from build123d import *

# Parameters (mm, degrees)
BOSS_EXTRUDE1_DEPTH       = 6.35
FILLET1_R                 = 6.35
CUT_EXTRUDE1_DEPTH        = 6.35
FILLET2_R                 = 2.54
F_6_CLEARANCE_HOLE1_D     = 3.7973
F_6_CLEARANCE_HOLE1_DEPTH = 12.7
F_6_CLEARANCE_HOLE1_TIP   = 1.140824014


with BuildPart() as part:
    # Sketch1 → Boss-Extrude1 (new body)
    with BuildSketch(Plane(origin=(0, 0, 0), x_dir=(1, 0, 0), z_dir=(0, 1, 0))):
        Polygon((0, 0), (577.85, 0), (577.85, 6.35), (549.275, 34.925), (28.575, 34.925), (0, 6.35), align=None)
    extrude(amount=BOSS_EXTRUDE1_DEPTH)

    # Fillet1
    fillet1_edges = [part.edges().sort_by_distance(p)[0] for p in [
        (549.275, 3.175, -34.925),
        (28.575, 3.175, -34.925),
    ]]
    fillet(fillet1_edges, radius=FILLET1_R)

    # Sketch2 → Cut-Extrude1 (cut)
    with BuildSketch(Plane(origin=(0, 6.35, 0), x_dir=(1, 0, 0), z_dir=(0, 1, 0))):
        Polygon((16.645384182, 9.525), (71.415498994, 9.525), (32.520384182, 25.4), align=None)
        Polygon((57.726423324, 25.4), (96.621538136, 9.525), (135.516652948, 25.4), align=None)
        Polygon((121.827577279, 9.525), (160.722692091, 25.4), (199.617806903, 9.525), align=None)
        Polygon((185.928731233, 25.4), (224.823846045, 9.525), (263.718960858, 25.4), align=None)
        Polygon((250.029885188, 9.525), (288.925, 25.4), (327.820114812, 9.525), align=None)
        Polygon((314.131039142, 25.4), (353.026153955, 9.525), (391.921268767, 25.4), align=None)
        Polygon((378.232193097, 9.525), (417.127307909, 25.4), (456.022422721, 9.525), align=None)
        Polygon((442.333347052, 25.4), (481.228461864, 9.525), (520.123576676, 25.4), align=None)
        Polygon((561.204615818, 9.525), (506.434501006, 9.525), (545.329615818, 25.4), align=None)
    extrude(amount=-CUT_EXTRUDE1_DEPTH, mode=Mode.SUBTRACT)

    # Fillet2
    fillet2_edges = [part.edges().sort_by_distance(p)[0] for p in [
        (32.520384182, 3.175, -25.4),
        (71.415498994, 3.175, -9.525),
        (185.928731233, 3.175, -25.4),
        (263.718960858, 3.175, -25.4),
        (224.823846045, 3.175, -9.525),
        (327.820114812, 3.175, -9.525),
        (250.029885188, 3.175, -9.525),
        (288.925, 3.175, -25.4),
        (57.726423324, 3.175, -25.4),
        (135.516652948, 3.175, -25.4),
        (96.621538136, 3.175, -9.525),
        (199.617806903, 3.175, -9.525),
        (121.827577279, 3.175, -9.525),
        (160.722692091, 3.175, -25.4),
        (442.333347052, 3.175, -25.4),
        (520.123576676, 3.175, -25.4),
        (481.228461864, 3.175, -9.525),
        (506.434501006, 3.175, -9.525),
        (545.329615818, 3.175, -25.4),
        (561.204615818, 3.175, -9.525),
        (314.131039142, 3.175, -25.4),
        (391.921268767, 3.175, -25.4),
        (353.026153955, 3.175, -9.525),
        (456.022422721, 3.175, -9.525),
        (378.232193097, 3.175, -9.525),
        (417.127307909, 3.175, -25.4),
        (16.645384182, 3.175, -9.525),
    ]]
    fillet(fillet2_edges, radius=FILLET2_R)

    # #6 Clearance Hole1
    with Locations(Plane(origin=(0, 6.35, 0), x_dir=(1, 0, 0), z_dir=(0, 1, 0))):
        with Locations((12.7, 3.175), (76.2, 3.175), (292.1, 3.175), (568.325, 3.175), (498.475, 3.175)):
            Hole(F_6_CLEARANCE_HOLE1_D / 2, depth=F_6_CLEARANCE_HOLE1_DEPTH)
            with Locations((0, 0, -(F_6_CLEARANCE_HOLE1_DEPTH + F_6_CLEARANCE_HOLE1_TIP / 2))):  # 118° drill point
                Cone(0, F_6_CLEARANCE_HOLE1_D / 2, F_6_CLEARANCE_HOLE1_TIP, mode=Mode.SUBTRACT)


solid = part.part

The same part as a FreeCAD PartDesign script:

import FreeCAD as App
import Part
import Sketcher
from FreeCAD import Vector
Q = App.Units.Quantity


def edges_at(feature, points):
    """Names of the edges that pass closest to the given points."""
    edges = feature.Shape.Edges
    near = lambda p: min(range(len(edges)), key=lambda i: edges[i].distToShape(Part.Vertex(*p))[0])
    return sorted({f"Edge{near(p) + 1}" for p in points})

doc = App.newDocument("Part")
params = doc.addObject("Spreadsheet::Sheet", "Params")
for row, (alias, value) in enumerate([
    ("sketch1_width", "20.5 in"),
    ("sketch1_width2", "22.75 in"),
    ("sketch1_height", "0.25 in"),
    ("pad1_length", "0.25 in"),
    ("fillet_radius", "0.25 in"),
    ("pocket1_length", "0.25 in"),
    ("fillet2_radius", "0.1 in"),
    ("hole_diameter", "0.1495 in"),
    ("hole_depth", "0.5 in"),
], start=1):
    params.set(f"A{row}", alias)
    params.set(f"B{row}", "=" + value)
    params.setAlias(f"B{row}", alias)

body = doc.addObject("PartDesign::Body", "Body")

sketch1 = body.newObject("Sketcher::SketchObject", "Sketch")
sketch1.AttachmentSupport = (doc.getObject("XZ_Plane"), [""])
sketch1.MapMode = "FlatFace"
sketch1.addGeometry(Part.LineSegment(Vector(0, 0, 0), Vector(578, 0, 0)), False)
sketch1.addGeometry(Part.LineSegment(Vector(578, 0, 0), Vector(578, -6, 0)), False)
sketch1.addGeometry(Part.LineSegment(Vector(578, -6, 0), Vector(549, -35, 0)), False)
sketch1.addGeometry(Part.LineSegment(Vector(549, -35, 0), Vector(29, -35, 0)), False)
sketch1.addGeometry(Part.LineSegment(Vector(29, -35, 0), Vector(0, -6, 0)), False)
sketch1.addGeometry(Part.LineSegment(Vector(0, -6, 0), Vector(0, 0, 0)), False)
sketch1.addConstraint(Sketcher.Constraint("Coincident", 0, 2, 1, 1))
sketch1.addConstraint(Sketcher.Constraint("Coincident", 1, 2, 2, 1))
sketch1.addConstraint(Sketcher.Constraint("Coincident", 2, 2, 3, 1))
sketch1.addConstraint(Sketcher.Constraint("Coincident", 3, 2, 4, 1))
sketch1.addConstraint(Sketcher.Constraint("Coincident", 4, 2, 5, 1))
sketch1.addConstraint(Sketcher.Constraint("Coincident", 5, 2, 0, 1))
sketch1.addConstraint(Sketcher.Constraint("Horizontal", 0))
sketch1.addConstraint(Sketcher.Constraint("Vertical", 1))
sketch1.addConstraint(Sketcher.Constraint("Horizontal", 3))
sketch1.addConstraint(Sketcher.Constraint("Vertical", 5))
sketch1.addConstraint(Sketcher.Constraint("Coincident", 5, 2, -1, 1))
sketch1.addConstraint(Sketcher.Constraint("Perpendicular", 2, 4))
sketch1.addConstraint(Sketcher.Constraint("Horizontal", 1, 2, 4, 2))
sketch1.addConstraint(Sketcher.Constraint("Equal", 2, 4))
sketch1.addConstraint(Sketcher.Constraint("DistanceX", 3, 2, 3, 1, Q("20.5 in")))
sketch1.addConstraint(Sketcher.Constraint("DistanceX", 0, 1, 0, 2, Q("22.75 in")))
sketch1.addConstraint(Sketcher.Constraint("DistanceY", 1, 2, 1, 1, Q("0.25 in")))
sketch1.setExpression("Constraints[14]", "Params.sketch1_width")
sketch1.setExpression("Constraints[15]", "Params.sketch1_width2")
sketch1.setExpression("Constraints[16]", "Params.sketch1_height")
pad1 = body.newObject("PartDesign::Pad", "Pad")
pad1.Profile = sketch1
pad1.setExpression("Length", "Params.pad1_length")
pad1.Reversed = True
doc.recompute()

fillet = body.newObject("PartDesign::Fillet", "Fillet")
fillet.Base = (pad1, edges_at(pad1, [(549.275, 3.175, -34.925), (28.575, 3.175, -34.925)]))
fillet.setExpression("Radius", "Params.fillet_radius")

sketch2 = body.newObject("Sketcher::SketchObject", "Sketch001")
sketch2.AttachmentSupport = (doc.getObject("XZ_Plane"), [""])
sketch2.MapMode = "FlatFace"
sketch2.AttachmentOffset = App.Placement(Vector(0, 0, -0.25 * 25.4), App.Rotation())
sketch2.addGeometry(Part.LineSegment(Vector(17, -10, 0), Vector(71, -10, 0)), False)
sketch2.addGeometry(Part.LineSegment(Vector(71, -10, 0), Vector(33, -25, 0)), False)
sketch2.addGeometry(Part.LineSegment(Vector(33, -25, 0), Vector(17, -10, 0)), False)
sketch2.addGeometry(Part.LineSegment(Vector(58, -25, 0), Vector(97, -10, 0)), False)
sketch2.addGeometry(Part.LineSegment(Vector(97, -10, 0), Vector(136, -25, 0)), False)
sketch2.addGeometry(Part.LineSegment(Vector(136, -25, 0), Vector(58, -25, 0)), False)
sketch2.addGeometry(Part.LineSegment(Vector(161, -25, 0), Vector(122, -10, 0)), False)
sketch2.addGeometry(Part.LineSegment(Vector(122, -10, 0), Vector(200, -10, 0)), False)
sketch2.addGeometry(Part.LineSegment(Vector(200, -10, 0), Vector(161, -25, 0)), False)
sketch2.addGeometry(Part.LineSegment(Vector(186, -25, 0), Vector(225, -10, 0)), False)
sketch2.addGeometry(Part.LineSegment(Vector(225, -10, 0), Vector(264, -25, 0)), False)
sketch2.addGeometry(Part.LineSegment(Vector(264, -25, 0), Vector(186, -25, 0)), False)
sketch2.addGeometry(Part.LineSegment(Vector(289, -25, 0), Vector(250, -10, 0)), False)
sketch2.addGeometry(Part.LineSegment(Vector(250, -10, 0), Vector(328, -10, 0)), False)
sketch2.addGeometry(Part.LineSegment(Vector(328, -10, 0), Vector(289, -25, 0)), False)
sketch2.addGeometry(Part.LineSegment(Vector(314, -25, 0), Vector(353, -10, 0)), False)
sketch2.addGeometry(Part.LineSegment(Vector(353, -10, 0), Vector(392, -25, 0)), False)
sketch2.addGeometry(Part.LineSegment(Vector(392, -25, 0), Vector(314, -25, 0)), False)
sketch2.addGeometry(Part.LineSegment(Vector(417, -25, 0), Vector(378, -10, 0)), False)
sketch2.addGeometry(Part.LineSegment(Vector(378, -10, 0), Vector(456, -10, 0)), False)
sketch2.addGeometry(Part.LineSegment(Vector(456, -10, 0), Vector(417, -25, 0)), False)
sketch2.addGeometry(Part.LineSegment(Vector(442, -25, 0), Vector(481, -10, 0)), False)
sketch2.addGeometry(Part.LineSegment(Vector(481, -10, 0), Vector(520, -25, 0)), False)
sketch2.addGeometry(Part.LineSegment(Vector(520, -25, 0), Vector(442, -25, 0)), False)
sketch2.addGeometry(Part.LineSegment(Vector(506, -10, 0), Vector(561, -10, 0)), False)
sketch2.addGeometry(Part.LineSegment(Vector(561, -10, 0), Vector(545, -25, 0)), False)
sketch2.addGeometry(Part.LineSegment(Vector(545, -25, 0), Vector(506, -10, 0)), False)
sketch2.addConstraint(Sketcher.Constraint("Coincident", 0, 2, 1, 1))
sketch2.addConstraint(Sketcher.Constraint("Coincident", 1, 2, 2, 1))
sketch2.addConstraint(Sketcher.Constraint("Coincident", 2, 2, 0, 1))
sketch2.addConstraint(Sketcher.Constraint("Coincident", 3, 2, 4, 1))
sketch2.addConstraint(Sketcher.Constraint("Coincident", 4, 2, 5, 1))
sketch2.addConstraint(Sketcher.Constraint("Coincident", 5, 2, 3, 1))
sketch2.addConstraint(Sketcher.Constraint("Coincident", 6, 2, 7, 1))
sketch2.addConstraint(Sketcher.Constraint("Coincident", 7, 2, 8, 1))
sketch2.addConstraint(Sketcher.Constraint("Coincident", 8, 2, 6, 1))
sketch2.addConstraint(Sketcher.Constraint("Coincident", 9, 2, 10, 1))
sketch2.addConstraint(Sketcher.Constraint("Coincident", 10, 2, 11, 1))
sketch2.addConstraint(Sketcher.Constraint("Coincident", 11, 2, 9, 1))
sketch2.addConstraint(Sketcher.Constraint("Coincident", 12, 2, 13, 1))
sketch2.addConstraint(Sketcher.Constraint("Coincident", 13, 2, 14, 1))
sketch2.addConstraint(Sketcher.Constraint("Coincident", 14, 2, 12, 1))
sketch2.addConstraint(Sketcher.Constraint("Coincident", 15, 2, 16, 1))
sketch2.addConstraint(Sketcher.Constraint("Coincident", 16, 2, 17, 1))
sketch2.addConstraint(Sketcher.Constraint("Coincident", 17, 2, 15, 1))
sketch2.addConstraint(Sketcher.Constraint("Coincident", 18, 2, 19, 1))
sketch2.addConstraint(Sketcher.Constraint("Coincident", 19, 2, 20, 1))
sketch2.addConstraint(Sketcher.Constraint("Coincident", 20, 2, 18, 1))
sketch2.addConstraint(Sketcher.Constraint("Coincident", 21, 2, 22, 1))
sketch2.addConstraint(Sketcher.Constraint("Coincident", 22, 2, 23, 1))
sketch2.addConstraint(Sketcher.Constraint("Coincident", 23, 2, 21, 1))
sketch2.addConstraint(Sketcher.Constraint("Coincident", 24, 2, 25, 1))
sketch2.addConstraint(Sketcher.Constraint("Coincident", 25, 2, 26, 1))
sketch2.addConstraint(Sketcher.Constraint("Coincident", 26, 2, 24, 1))
sketch2.addConstraint(Sketcher.Constraint("Horizontal", 0))
sketch2.addConstraint(Sketcher.Constraint("Horizontal", 5))
sketch2.addConstraint(Sketcher.Constraint("Horizontal", 7))
sketch2.addConstraint(Sketcher.Constraint("Horizontal", 11))
sketch2.addConstraint(Sketcher.Constraint("Horizontal", 13))
sketch2.addConstraint(Sketcher.Constraint("Horizontal", 17))
sketch2.addConstraint(Sketcher.Constraint("Horizontal", 19))
sketch2.addConstraint(Sketcher.Constraint("Horizontal", 23))
sketch2.addConstraint(Sketcher.Constraint("Horizontal", 24))
sketch2.addConstraint(Sketcher.Constraint("Parallel", 1, 3))
sketch2.addConstraint(Sketcher.Constraint("Parallel", 4, 6))
sketch2.addConstraint(Sketcher.Constraint("Parallel", 3, 8))
sketch2.addConstraint(Sketcher.Constraint("Parallel", 8, 9))
sketch2.addConstraint(Sketcher.Constraint("Parallel", 6, 10))
sketch2.addConstraint(Sketcher.Constraint("Parallel", 10, 12))
sketch2.addConstraint(Sketcher.Constraint("Parallel", 9, 14))
sketch2.addConstraint(Sketcher.Constraint("Parallel", 14, 15))
sketch2.addConstraint(Sketcher.Constraint("Parallel", 12, 16))
sketch2.addConstraint(Sketcher.Constraint("Parallel", 16, 18))
sketch2.addConstraint(Sketcher.Constraint("Parallel", 15, 20))
sketch2.addConstraint(Sketcher.Constraint("Parallel", 20, 21))
sketch2.addConstraint(Sketcher.Constraint("Parallel", 18, 22))
sketch2.addConstraint(Sketcher.Constraint("Perpendicular", 2, 25))
sketch2.addConstraint(Sketcher.Constraint("Parallel", 22, 26))
sketch2.addConstraint(Sketcher.Constraint("Horizontal", 2, 2, 3, 2))
sketch2.addConstraint(Sketcher.Constraint("Horizontal", 1, 2, 4, 2))
sketch2.addConstraint(Sketcher.Constraint("Horizontal", 3, 2, 6, 2))
sketch2.addConstraint(Sketcher.Constraint("Horizontal", 5, 2, 8, 2))
sketch2.addConstraint(Sketcher.Constraint("Horizontal", 7, 2, 9, 2))
sketch2.addConstraint(Sketcher.Constraint("Horizontal", 8, 2, 10, 2))
sketch2.addConstraint(Sketcher.Constraint("Horizontal", 9, 2, 12, 2))
sketch2.addConstraint(Sketcher.Constraint("Horizontal", 11, 2, 14, 2))
sketch2.addConstraint(Sketcher.Constraint("Horizontal", 13, 2, 15, 2))
sketch2.addConstraint(Sketcher.Constraint("Horizontal", 14, 2, 16, 2))
sketch2.addConstraint(Sketcher.Constraint("Horizontal", 15, 2, 18, 2))
sketch2.addConstraint(Sketcher.Constraint("Horizontal", 17, 2, 20, 2))
sketch2.addConstraint(Sketcher.Constraint("Horizontal", 19, 2, 21, 2))
sketch2.addConstraint(Sketcher.Constraint("Horizontal", 20, 2, 22, 2))
sketch2.addConstraint(Sketcher.Constraint("Horizontal", 21, 2, 24, 2))
sketch2.addConstraint(Sketcher.Constraint("Horizontal", 23, 2, 25, 2))
sketch2.addConstraint(Sketcher.Constraint("Equal", 0, 24))
sketch2.addConstraint(Sketcher.Constraint("Equal", 3, 4))
sketch2.addConstraint(Sketcher.Constraint("DistanceY", 1, 2, -1, 1, Q("1 in")))
sketch2.addConstraint(Sketcher.Constraint("DistanceY", 0, 2, -1, 1, Q("0.375 in")))
sketch2.addConstraint(Sketcher.Constraint("DistanceX", -1, 1, 14, 2, Q("11.375 in")))
sketch2.addConstraint(Sketcher.Constraint("DistanceX", 5, 2, 5, 1, 77.79023))
sketch2.addConstraint(Sketcher.Constraint("DistanceX", -1, 1, 0, 2, 71.415499))
sketch2.addConstraint(Sketcher.Constraint("DistanceX", -1, 1, 26, 2, 506.434501))
sketch2.addConstraint(Sketcher.Constraint("DistanceX", -1, 1, 3, 2, 96.621538))
sketch2.addConstraint(Sketcher.Constraint("DistanceX", -1, 1, 10, 2, 263.718961))
sketch2.addConstraint(Sketcher.Constraint("DistanceX", -1, 1, 16, 2, 391.921269))
sketch2.addConstraint(Sketcher.Constraint("DistanceX", -1, 1, 21, 2, 481.228462))
sketch2.addConstraint(Sketcher.Constraint("DistanceX", 3, 2, 6, 2, 25.206039))
sketch2.addConstraint(Sketcher.Constraint("DistanceX", 15, 2, 18, 2, 25.206039))
pocket1 = body.newObject("PartDesign::Pocket", "Pocket")
pocket1.Profile = sketch2
pocket1.setExpression("Length", "Params.pocket1_length")
pocket1.Reversed = True
doc.recompute()

fillet2 = body.newObject("PartDesign::Fillet", "Fillet001")
fillet2.Base = (pocket1, edges_at(pocket1, [
    (32.52, 3.175, -25.4),
    (71.415, 3.175, -9.525),
    (185.929, 3.175, -25.4),
    (263.719, 3.175, -25.4),
    (224.824, 3.175, -9.525),
    (327.82, 3.175, -9.525),
    (250.03, 3.175, -9.525),
    (288.925, 3.175, -25.4),
    (57.726, 3.175, -25.4),
    (135.517, 3.175, -25.4),
    (96.622, 3.175, -9.525),
    (199.618, 3.175, -9.525),
    (121.828, 3.175, -9.525),
    (160.723, 3.175, -25.4),
    (442.333, 3.175, -25.4),
    (520.124, 3.175, -25.4),
    (481.228, 3.175, -9.525),
    (506.435, 3.175, -9.525),
    (545.33, 3.175, -25.4),
    (561.205, 3.175, -9.525),
    (314.131, 3.175, -25.4),
    (391.921, 3.175, -25.4),
    (353.026, 3.175, -9.525),
    (456.022, 3.175, -9.525),
    (378.232, 3.175, -9.525),
    (417.127, 3.175, -25.4),
    (16.645, 3.175, -9.525),
]))
fillet2.setExpression("Radius", "Params.fillet2_radius")

sketch3 = body.newObject("Sketcher::SketchObject", "Sketch002")
sketch3.AttachmentSupport = (doc.getObject("XZ_Plane"), [""])
sketch3.MapMode = "FlatFace"
sketch3.AttachmentOffset = App.Placement(Vector(0, 0, -0.25 * 25.4), App.Rotation())
sketch3.addGeometry(Part.Circle(Vector(12.7, -3.2, 0), Vector(0, 0, 1), 1.9), False)
sketch3.addGeometry(Part.Circle(Vector(76.2, -3.2, 0), Vector(0, 0, 1), 1.9), False)
sketch3.addGeometry(Part.Circle(Vector(292.1, -3.2, 0), Vector(0, 0, 1), 1.9), False)
sketch3.addGeometry(Part.Circle(Vector(568.3, -3.2, 0), Vector(0, 0, 1), 1.9), False)
sketch3.addGeometry(Part.Circle(Vector(498.5, -3.2, 0), Vector(0, 0, 1), 1.9), False)
sketch3.addConstraint(Sketcher.Constraint("Equal", 0, 1))
sketch3.addConstraint(Sketcher.Constraint("Equal", 1, 2))
sketch3.addConstraint(Sketcher.Constraint("Equal", 2, 3))
sketch3.addConstraint(Sketcher.Constraint("Equal", 3, 4))
sketch3.addConstraint(Sketcher.Constraint("Horizontal", 0, 3, 1, 3))
sketch3.addConstraint(Sketcher.Constraint("Horizontal", 1, 3, 2, 3))
sketch3.addConstraint(Sketcher.Constraint("Horizontal", 2, 3, 3, 3))
sketch3.addConstraint(Sketcher.Constraint("Horizontal", 3, 3, 4, 3))
sketch3.addConstraint(Sketcher.Constraint("DistanceX", -1, 1, 1, 3, Q("3 in")))
sketch3.addConstraint(Sketcher.Constraint("DistanceX", 0, 3, 2, 3, Q("11 in")))
sketch3.addConstraint(Sketcher.Constraint("Diameter", 0, Q("0.1495 in")))
sketch3.addConstraint(Sketcher.Constraint("DistanceX", -1, 1, 0, 3, Q("0.5 in")))
sketch3.addConstraint(Sketcher.Constraint("DistanceX", 4, 3, 3, 3, Q("2.75 in")))
sketch3.addConstraint(Sketcher.Constraint("DistanceY", 0, 3, -1, 1, Q("0.125 in")))
sketch3.addConstraint(Sketcher.Constraint("DistanceX", -1, 1, 3, 3, Q("22.375 in")))
doc.recompute()
hole = body.newObject("PartDesign::Hole", "Hole")
hole.Profile = sketch3
hole.ThreadType = "None"
hole.setExpression("Diameter", "Params.hole_diameter")
hole.DepthType = "Dimension"
hole.setExpression("Depth", "Params.hole_depth")
hole.DrillPoint = "Angled"
hole.DrillPointAngle = 118
hole.Reversed = True

doc.recompute()
